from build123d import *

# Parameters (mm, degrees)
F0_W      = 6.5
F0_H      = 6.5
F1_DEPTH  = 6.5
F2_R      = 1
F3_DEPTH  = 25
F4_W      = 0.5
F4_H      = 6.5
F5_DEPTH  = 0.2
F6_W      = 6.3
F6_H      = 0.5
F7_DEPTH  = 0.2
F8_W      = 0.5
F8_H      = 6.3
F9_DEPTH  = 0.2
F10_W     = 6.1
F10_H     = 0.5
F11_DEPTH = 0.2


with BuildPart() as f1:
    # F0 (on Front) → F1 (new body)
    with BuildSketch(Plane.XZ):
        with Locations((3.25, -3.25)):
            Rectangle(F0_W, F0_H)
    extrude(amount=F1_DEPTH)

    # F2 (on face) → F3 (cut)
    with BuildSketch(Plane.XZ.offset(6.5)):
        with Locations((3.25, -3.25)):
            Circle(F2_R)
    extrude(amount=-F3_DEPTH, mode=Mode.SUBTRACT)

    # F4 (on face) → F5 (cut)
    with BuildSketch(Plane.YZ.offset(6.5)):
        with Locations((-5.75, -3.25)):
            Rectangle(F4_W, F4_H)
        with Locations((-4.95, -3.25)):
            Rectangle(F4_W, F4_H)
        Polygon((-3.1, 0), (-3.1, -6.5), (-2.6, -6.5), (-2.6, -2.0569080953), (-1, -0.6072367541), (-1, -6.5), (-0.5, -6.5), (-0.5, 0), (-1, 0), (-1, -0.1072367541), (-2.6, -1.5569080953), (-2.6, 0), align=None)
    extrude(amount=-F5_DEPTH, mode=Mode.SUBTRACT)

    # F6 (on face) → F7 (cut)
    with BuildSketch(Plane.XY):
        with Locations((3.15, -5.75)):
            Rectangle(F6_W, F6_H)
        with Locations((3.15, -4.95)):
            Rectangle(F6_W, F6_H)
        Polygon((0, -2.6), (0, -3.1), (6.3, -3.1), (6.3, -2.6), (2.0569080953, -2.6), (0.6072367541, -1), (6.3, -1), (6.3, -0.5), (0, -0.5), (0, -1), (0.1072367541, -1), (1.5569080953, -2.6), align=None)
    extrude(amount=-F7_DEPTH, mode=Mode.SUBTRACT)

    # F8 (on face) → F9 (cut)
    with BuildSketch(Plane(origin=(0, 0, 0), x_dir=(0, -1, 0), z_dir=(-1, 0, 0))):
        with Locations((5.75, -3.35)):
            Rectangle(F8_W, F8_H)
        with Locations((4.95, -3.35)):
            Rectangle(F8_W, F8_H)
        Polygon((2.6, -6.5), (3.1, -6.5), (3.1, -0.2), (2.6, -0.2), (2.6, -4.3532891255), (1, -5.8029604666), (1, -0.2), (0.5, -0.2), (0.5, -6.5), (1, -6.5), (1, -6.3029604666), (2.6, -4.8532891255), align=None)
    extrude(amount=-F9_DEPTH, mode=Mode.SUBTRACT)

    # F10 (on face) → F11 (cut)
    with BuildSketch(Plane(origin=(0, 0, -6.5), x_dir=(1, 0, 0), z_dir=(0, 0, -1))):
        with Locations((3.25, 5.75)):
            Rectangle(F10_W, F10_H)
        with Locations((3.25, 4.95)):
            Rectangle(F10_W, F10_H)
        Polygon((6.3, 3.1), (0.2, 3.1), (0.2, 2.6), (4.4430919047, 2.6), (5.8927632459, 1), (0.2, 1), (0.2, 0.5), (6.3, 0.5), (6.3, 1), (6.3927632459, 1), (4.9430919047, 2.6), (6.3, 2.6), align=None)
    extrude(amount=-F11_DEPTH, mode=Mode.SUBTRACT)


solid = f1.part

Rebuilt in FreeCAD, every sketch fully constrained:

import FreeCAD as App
import Part
import Sketcher
Q = App.Units.Quantity


def add_polygon(sketch, points):
    """Adds a closed chain of lines whose ends are joined by coincident constraints."""
    first, n = sketch.GeometryCount, len(points)
    for a, b in zip(points, points[1:] + points[:1]):
        sketch.addGeometry(Part.LineSegment(App.Vector(*a, 0), App.Vector(*b, 0)), False)
    for i in range(n):
        sketch.addConstraint(Sketcher.Constraint("Coincident", first + i, 2, first + (i + 1) % n, 1))

doc = App.newDocument("Part")
body = doc.addObject("PartDesign::Body", "Body")

# Sketch on XZ plane
sketch1 = doc.addObject("Sketcher::SketchObject", "Sketch")
body.addObject(sketch1)
sketch1.AttachmentSupport = (doc.XZ_Plane, [""])
sketch1.MapMode = "FlatFace"
add_polygon(sketch1, [(0, 0), (0, -6.5), (6.5, -6.5), (6.5, 0)])  # lines 0-3
sketch1.addConstraint(Sketcher.Constraint("Vertical", 0))
sketch1.addConstraint(Sketcher.Constraint("Horizontal", 1))
sketch1.addConstraint(Sketcher.Constraint("Vertical", 2))
sketch1.addConstraint(Sketcher.Constraint("Horizontal", 3))
sketch1.addConstraint(Sketcher.Constraint("Coincident", 3, 2, -1, 1))
sketch1.addConstraint(Sketcher.Constraint("Equal", 3, 0))
sketch1.addConstraint(Sketcher.Constraint("DistanceX", 1, 1, 1, 2, Q("6.5 mm")))
pad1 = doc.addObject("PartDesign::Pad", "Pad")
body.addObject(pad1)
pad1.Profile = sketch1
pad1.Length = 6.5

# Sketch on XZ plane
sketch2 = doc.addObject("Sketcher::SketchObject", "Sketch001")
body.addObject(sketch2)
sketch2.AttachmentSupport = (doc.XZ_Plane, [""])
sketch2.MapMode = "FlatFace"
sketch2.AttachmentOffset = App.Placement(App.Vector(0, 0, 6.5), App.Rotation())
sketch2.addGeometry(Part.Circle(App.Vector(3.25, -3.25, 0), App.Vector(0, 0, 1), 1), False)
sketch2.addConstraint(Sketcher.Constraint("Diameter", 0, Q("2 mm")))
sketch2.addConstraint(Sketcher.Constraint("DistanceX", -1, 1, 0, 3, Q("3.25 mm")))
sketch2.addConstraint(Sketcher.Constraint("DistanceY", 0, 3, -1, 1, Q("3.25 mm")))
pocket1 = doc.addObject("PartDesign::Pocket", "Pocket")
body.addObject(pocket1)
pocket1.Profile = sketch2
pocket1.Length = 25

# Sketch on YZ plane
sketch3 = doc.addObject("Sketcher::SketchObject", "Sketch002")
body.addObject(sketch3)
sketch3.AttachmentSupport = (doc.YZ_Plane, [""])
sketch3.MapMode = "FlatFace"
sketch3.AttachmentOffset = App.Placement(App.Vector(0, 0, 6.5), App.Rotation())
add_polygon(sketch3, [(-6, 0), (-6, -6.5), (-5.5, -6.5), (-5.5, 0)])  # lines 0-3
add_polygon(sketch3, [(-5.2, 0), (-5.2, -6.5), (-4.7, -6.5), (-4.7, 0)])  # lines 4-7
add_polygon(sketch3, [(-3.1, 0), (-3.1, -6.5), (-2.6, -6.5), (-2.6, -2.056908), (-1, -0.607237), (-1, -6.5), (-0.5, -6.5), (-0.5, 0), (-1, 0), (-1, -0.107237), (-2.6, -1.556908), (-2.6, 0)])  # lines 8-19
sketch3.addConstraint(Sketcher.Constraint("Vertical", 0))
sketch3.addConstraint(Sketcher.Constraint("Horizontal", 1))
sketch3.addConstraint(Sketcher.Constraint("Vertical", 2))
sketch3.addConstraint(Sketcher.Constraint("Horizontal", 3))
sketch3.addConstraint(Sketcher.Constraint("Vertical", 4))
sketch3.addConstraint(Sketcher.Constraint("Horizontal", 5))
sketch3.addConstraint(Sketcher.Constraint("Vertical", 6))
sketch3.addConstraint(Sketcher.Constraint("Horizontal", 7))
sketch3.addConstraint(Sketcher.Constraint("Vertical", 8))
sketch3.addConstraint(Sketcher.Constraint("Horizontal", 9))
sketch3.addConstraint(Sketcher.Constraint("Vertical", 10))
sketch3.addConstraint(Sketcher.Constraint("Vertical", 12))
sketch3.addConstraint(Sketcher.Constraint("Horizontal", 13))
sketch3.addConstraint(Sketcher.Constraint("Vertical", 14))
sketch3.addConstraint(Sketcher.Constraint("Horizontal", 15))
sketch3.addConstraint(Sketcher.Constraint("Vertical", 16))
sketch3.addConstraint(Sketcher.Constraint("Vertical", 18))
sketch3.addConstraint(Sketcher.Constraint("Horizontal", 19))
sketch3.addConstraint(Sketcher.Constraint("PointOnObject", 2, 2, -1))
sketch3.addConstraint(Sketcher.Constraint("PointOnObject", 6, 2, -1))
sketch3.addConstraint(Sketcher.Constraint("PointOnObject", 14, 2, -1))
sketch3.addConstraint(Sketcher.Constraint("PointOnObject", 18, 2, -1))
sketch3.addConstraint(Sketcher.Constraint("Parallel", 11, 17))
sketch3.addConstraint(Sketcher.Constraint("Horizontal", 1, 2, 4, 2))
sketch3.addConstraint(Sketcher.Constraint("Horizontal", 5, 2, 8, 2))
sketch3.addConstraint(Sketcher.Constraint("Horizontal", 9, 2, 12, 2))
sketch3.addConstraint(Sketcher.Constraint("Vertical", 12, 2, 15, 2))
sketch3.addConstraint(Sketcher.Constraint("Vertical", 10, 2, 17, 2))
sketch3.addConstraint(Sketcher.Constraint("Equal", 3, 5))
sketch3.addConstraint(Sketcher.Constraint("Equal", 7, 9))
sketch3.addConstraint(Sketcher.Constraint("Equal", 9, 13))
sketch3.addConstraint(Sketcher.Constraint("DistanceX", 1, 1, 1, 2, Q("0.5 mm")))
sketch3.addConstraint(Sketcher.Constraint("DistanceY", 0, 2, 0, 1, Q("6.5 mm")))
sketch3.addConstraint(Sketcher.Constraint("DistanceX", 0, 2, -1, 1, Q("6 mm")))
sketch3.addConstraint(Sketcher.Constraint("DistanceX", 11, 2, -1, 1, Q("1 mm")))
sketch3.addConstraint(Sketcher.Constraint("DistanceX", 4, 2, -1, 1, Q("5.2 mm")))
sketch3.addConstraint(Sketcher.Constraint("DistanceX", 8, 2, -1, 1, Q("3.1 mm")))
sketch3.addConstraint(Sketcher.Constraint("DistanceY", 11, 2, 16, 2, Q("0.5 mm")))
sketch3.addConstraint(Sketcher.Constraint("DistanceY", 10, 1, 10, 2, Q("4.443092 mm")))
sketch3.addConstraint(Sketcher.Constraint("Distance", 11, Q("2.159062 mm")))
pocket2 = doc.addObject("PartDesign::Pocket", "Pocket001")
body.addObject(pocket2)
pocket2.Profile = sketch3
pocket2.Length = 0.2

# Sketch on XY plane
sketch4 = doc.addObject("Sketcher::SketchObject", "Sketch003")
body.addObject(sketch4)
sketch4.AttachmentSupport = (doc.XY_Plane, [""])
sketch4.MapMode = "FlatFace"
add_polygon(sketch4, [(0, -5.5), (0, -6), (6.3, -6), (6.3, -5.5)])  # lines 0-3
add_polygon(sketch4, [(0, -4.7), (0, -5.2), (6.3, -5.2), (6.3, -4.7)])  # lines 4-7
add_polygon(sketch4, [(0, -2.6), (0, -3.1), (6.3, -3.1), (6.3, -2.6), (2.056908, -2.6), (0.607237, -1), (6.3, -1), (6.3, -0.5), (0, -0.5), (0, -1), (0.107237, -1), (1.556908, -2.6)])  # lines 8-19
sketch4.addConstraint(Sketcher.Constraint("Vertical", 0))
sketch4.addConstraint(Sketcher.Constraint("Horizontal", 1))
sketch4.addConstraint(Sketcher.Constraint("Vertical", 2))
sketch4.addConstraint(Sketcher.Constraint("Horizontal", 3))
sketch4.addConstraint(Sketcher.Constraint("Vertical", 4))
sketch4.addConstraint(Sketcher.Constraint("Horizontal", 5))
sketch4.addConstraint(Sketcher.Constraint("Vertical", 6))
sketch4.addConstraint(Sketcher.Constraint("Horizontal", 7))
sketch4.addConstraint(Sketcher.Constraint("Vertical", 8))
sketch4.addConstraint(Sketcher.Constraint("Horizontal", 9))
sketch4.addConstraint(Sketcher.Constraint("Vertical", 10))
sketch4.addConstraint(Sketcher.Constraint("Horizontal", 11))
sketch4.addConstraint(Sketcher.Constraint("Horizontal", 13))
sketch4.addConstraint(Sketcher.Constraint("Vertical", 14))
sketch4.addConstraint(Sketcher.Constraint("Horizontal", 15))
sketch4.addConstraint(Sketcher.Constraint("Vertical", 16))
sketch4.addConstraint(Sketcher.Constraint("Horizontal", 17))
sketch4.addConstraint(Sketcher.Constraint("Horizontal", 19))
sketch4.addConstraint(Sketcher.Constraint("PointOnObject", 0, 2, -2))
sketch4.addConstraint(Sketcher.Constraint("PointOnObject", 4, 2, -2))
sketch4.addConstraint(Sketcher.Constraint("PointOnObject", 8, 2, -2))
sketch4.addConstraint(Sketcher.Constraint("PointOnObject", 15, 2, -2))
sketch4.addConstraint(Sketcher.Constraint("Parallel", 12, 18))
sketch4.addConstraint(Sketcher.Constraint("Horizontal", 13, 2, 16, 2))
sketch4.addConstraint(Sketcher.Constraint("Horizontal", 11, 2, 18, 2))
sketch4.addConstraint(Sketcher.Constraint("Vertical", 2, 2, 5, 2))
sketch4.addConstraint(Sketcher.Constraint("Vertical", 6, 2, 9, 2))
sketch4.addConstraint(Sketcher.Constraint("Vertical", 10, 2, 13, 2))
sketch4.addConstraint(Sketcher.Constraint("Equal", 2, 4))
sketch4.addConstraint(Sketcher.Constraint("Equal", 6, 8))
sketch4.addConstraint(Sketcher.Constraint("Equal", 10, 14))
sketch4.addConstraint(Sketcher.Constraint("DistanceX", 1, 1, 1, 2, Q("6.3 mm")))
sketch4.addConstraint(Sketcher.Constraint("DistanceY", 0, 2, 0, 1, Q("0.5 mm")))
sketch4.addConstraint(Sketcher.Constraint("DistanceY", 0, 2, -1, 1, Q("6 mm")))
sketch4.addConstraint(Sketcher.Constraint("DistanceY", 12, 2, -1, 1, Q("1 mm")))
sketch4.addConstraint(Sketcher.Constraint("DistanceY", 4, 2, -1, 1, Q("5.2 mm")))
sketch4.addConstraint(Sketcher.Constraint("DistanceY", 8, 2, -1, 1, Q("3.1 mm")))
sketch4.addConstraint(Sketcher.Constraint("DistanceX", 17, 2, 12, 2, Q("0.5 mm")))
sketch4.addConstraint(Sketcher.Constraint("DistanceX", 11, 2, 11, 1, Q("4.243092 mm")))
sketch4.addConstraint(Sketcher.Constraint("Distance", 12, Q("2.159062 mm")))
pocket3 = doc.addObject("PartDesign::Pocket", "Pocket002")
body.addObject(pocket3)
pocket3.Profile = sketch4
pocket3.Length = 0.2

# Sketch on YZ plane
sketch5 = doc.addObject("Sketcher::SketchObject", "Sketch004")
body.addObject(sketch5)
sketch5.AttachmentSupport = (doc.YZ_Plane, [""])
sketch5.MapMode = "FlatFace"
add_polygon(sketch5, [(-5.5, -0.2), (-5.5, -6.5), (-6, -6.5), (-6, -0.2)])  # lines 0-3
add_polygon(sketch5, [(-4.7, -0.2), (-4.7, -6.5), (-5.2, -6.5), (-5.2, -0.2)])  # lines 4-7
add_polygon(sketch5, [(-2.6, -6.5), (-3.1, -6.5), (-3.1, -0.2), (-2.6, -0.2), (-2.6, -4.353289), (-1, -5.80296), (-1, -0.2), (-0.5, -0.2), (-0.5, -6.5), (-1, -6.5), (-1, -6.30296), (-2.6, -4.853289)])  # lines 8-19
sketch5.addConstraint(Sketcher.Constraint("Vertical", 0))
sketch5.addConstraint(Sketcher.Constraint("Horizontal", 1))
sketch5.addConstraint(Sketcher.Constraint("Vertical", 2))
sketch5.addConstraint(Sketcher.Constraint("Horizontal", 3))
sketch5.addConstraint(Sketcher.Constraint("Vertical", 4))
sketch5.addConstraint(Sketcher.Constraint("Horizontal", 5))
sketch5.addConstraint(Sketcher.Constraint("Vertical", 6))
sketch5.addConstraint(Sketcher.Constraint("Horizontal", 7))
sketch5.addConstraint(Sketcher.Constraint("Horizontal", 8))
sketch5.addConstraint(Sketcher.Constraint("Vertical", 9))
sketch5.addConstraint(Sketcher.Constraint("Horizontal", 10))
sketch5.addConstraint(Sketcher.Constraint("Vertical", 11))
sketch5.addConstraint(Sketcher.Constraint("Vertical", 13))
sketch5.addConstraint(Sketcher.Constraint("Horizontal", 14))
sketch5.addConstraint(Sketcher.Constraint("Vertical", 15))
sketch5.addConstraint(Sketcher.Constraint("Horizontal", 16))
sketch5.addConstraint(Sketcher.Constraint("Vertical", 17))
sketch5.addConstraint(Sketcher.Constraint("Vertical", 19))
sketch5.addConstraint(Sketcher.Constraint("Parallel", 12, 18))
sketch5.addConstraint(Sketcher.Constraint("Horizontal", 1, 2, 4, 2))
sketch5.addConstraint(Sketcher.Constraint("Horizontal", 3, 2, 6, 2))
sketch5.addConstraint(Sketcher.Constraint("Horizontal", 5, 2, 8, 2))
sketch5.addConstraint(Sketcher.Constraint("Horizontal", 7, 2, 9, 2))
sketch5.addConstraint(Sketcher.Constraint("Horizontal", 10, 2, 13, 2))
sketch5.addConstraint(Sketcher.Constraint("Horizontal", 8, 2, 15, 2))
sketch5.addConstraint(Sketcher.Constraint("Vertical", 13, 2, 16, 2))
sketch5.addConstraint(Sketcher.Constraint("Vertical", 11, 2, 18, 2))
sketch5.addConstraint(Sketcher.Constraint("Equal", 3, 5))
sketch5.addConstraint(Sketcher.Constraint("Equal", 7, 8))
sketch5.addConstraint(Sketcher.Constraint("Equal", 10, 14))
sketch5.addConstraint(Sketcher.Constraint("DistanceX", 1, 2, 1, 1, Q("0.5 mm")))
sketch5.addConstraint(Sketcher.Constraint("DistanceY", 0, 2, 0, 1, Q("6.3 mm")))
sketch5.addConstraint(Sketcher.Constraint("DistanceX", 1, 2, -1, 1, Q("6 mm")))
sketch5.addConstraint(Sketcher.Constraint("DistanceX", 12, 2, -1, 1, Q("1 mm")))
sketch5.addConstraint(Sketcher.Constraint("DistanceY", 0, 2, -1, 1, Q("6.5 mm")))
sketch5.addConstraint(Sketcher.Constraint("DistanceX", 4, 2, -1, 1, Q("4.7 mm")))
sketch5.addConstraint(Sketcher.Constraint("DistanceX", 8, 2, -1, 1, Q("3.1 mm")))
sketch5.addConstraint(Sketcher.Constraint("DistanceY", 17, 2, 12, 2, Q("0.5 mm")))
sketch5.addConstraint(Sketcher.Constraint("DistanceY", 11, 2, 11, 1, Q("4.153289 mm")))
sketch5.addConstraint(Sketcher.Constraint("DistanceY", 13, 1, 13, 2, Q("5.60296 mm")))
pocket4 = doc.addObject("PartDesign::Pocket", "Pocket003")
body.addObject(pocket4)
pocket4.Profile = sketch5
pocket4.Length = 0.2
pocket4.Reversed = True

# Sketch on XY plane
sketch6 = doc.addObject("Sketcher::SketchObject", "Sketch005")
body.addObject(sketch6)
sketch6.AttachmentSupport = (doc.XY_Plane, [""])
sketch6.MapMode = "FlatFace"
sketch6.AttachmentOffset = App.Placement(App.Vector(0, 0, -6.5), App.Rotation())
add_polygon(sketch6, [(0.2, -6), (0.2, -5.5), (6.3, -5.5), (6.3, -6)])  # lines 0-3
add_polygon(sketch6, [(0.2, -5.2), (0.2, -4.7), (6.3, -4.7), (6.3, -5.2)])  # lines 4-7
add_polygon(sketch6, [(6.3, -3.1), (0.2, -3.1), (0.2, -2.6), (4.443092, -2.6), (5.892763, -1), (0.2, -1), (0.2, -0.5), (6.3, -0.5), (6.3, -1), (6.392763, -1), (4.943092, -2.6), (6.3, -2.6)])  # lines 8-19
sketch6.addConstraint(Sketcher.Constraint("Vertical", 0))
sketch6.addConstraint(Sketcher.Constraint("Horizontal", 1))
sketch6.addConstraint(Sketcher.Constraint("Vertical", 2))
sketch6.addConstraint(Sketcher.Constraint("Horizontal", 3))
sketch6.addConstraint(Sketcher.Constraint("Vertical", 4))
sketch6.addConstraint(Sketcher.Constraint("Horizontal", 5))
sketch6.addConstraint(Sketcher.Constraint("Vertical", 6))
sketch6.addConstraint(Sketcher.Constraint("Horizontal", 7))
sketch6.addConstraint(Sketcher.Constraint("Horizontal", 8))
sketch6.addConstraint(Sketcher.Constraint("Vertical", 9))
sketch6.addConstraint(Sketcher.Constraint("Horizontal", 10))
sketch6.addConstraint(Sketcher.Constraint("Horizontal", 12))
sketch6.addConstraint(Sketcher.Constraint("Vertical", 13))
sketch6.addConstraint(Sketcher.Constraint("Horizontal", 14))
sketch6.addConstraint(Sketcher.Constraint("Vertical", 15))
sketch6.addConstraint(Sketcher.Constraint("Horizontal", 16))
sketch6.addConstraint(Sketcher.Constraint("Horizontal", 18))
sketch6.addConstraint(Sketcher.Constraint("Vertical", 19))
sketch6.addConstraint(Sketcher.Constraint("Parallel", 11, 17))
sketch6.addConstraint(Sketcher.Constraint("Horizontal", 12, 2, 15, 2))
sketch6.addConstraint(Sketcher.Constraint("Horizontal", 10, 2, 17, 2))
sketch6.addConstraint(Sketcher.Constraint("Vertical", 3, 2, 4, 2))
sketch6.addConstraint(Sketcher.Constraint("Vertical", 2, 2, 5, 2))
sketch6.addConstraint(Sketcher.Constraint("Vertical", 7, 2, 8, 2))
sketch6.addConstraint(Sketcher.Constraint("Vertical", 9, 2, 12, 2))
sketch6.addConstraint(Sketcher.Constraint("Vertical", 6, 2, 14, 2))
sketch6.addConstraint(Sketcher.Constraint("Vertical", 15, 2, 18, 2))
sketch6.addConstraint(Sketcher.Constraint("Equal", 2, 4))
sketch6.addConstraint(Sketcher.Constraint("Equal", 6, 9))
sketch6.addConstraint(Sketcher.Constraint("Equal", 9, 13))
sketch6.addConstraint(Sketcher.Constraint("DistanceX", 1, 1, 1, 2, Q("6.1 mm")))
sketch6.addConstraint(Sketcher.Constraint("DistanceY", 0, 1, 0, 2, Q("0.5 mm")))
sketch6.addConstraint(Sketcher.Constraint("DistanceY", 2, 2, -1, 1, Q("6 mm")))
sketch6.addConstraint(Sketcher.Constraint("DistanceY", 11, 2, -1, 1, Q("1 mm")))
sketch6.addConstraint(Sketcher.Constraint("DistanceX", -1, 1, 0, 2, Q("0.2 mm")))
sketch6.addConstraint(Sketcher.Constraint("DistanceY", 4, 2, -1, 1, Q("4.7 mm")))
sketch6.addConstraint(Sketcher.Constraint("DistanceY", 8, 2, -1, 1, Q("3.1 mm")))
sketch6.addConstraint(Sketcher.Constraint("DistanceX", 11, 2, 16, 2, Q("0.5 mm")))
sketch6.addConstraint(Sketcher.Constraint("DistanceX", 10, 1, 10, 2, Q("4.243092 mm")))
sketch6.addConstraint(Sketcher.Constraint("Distance", 11, Q("2.159062 mm")))
pocket5 = doc.addObject("PartDesign::Pocket", "Pocket004")
body.addObject(pocket5)
pocket5.Profile = sketch6
pocket5.Length = 0.2
pocket5.Reversed = True

doc.recompute()
